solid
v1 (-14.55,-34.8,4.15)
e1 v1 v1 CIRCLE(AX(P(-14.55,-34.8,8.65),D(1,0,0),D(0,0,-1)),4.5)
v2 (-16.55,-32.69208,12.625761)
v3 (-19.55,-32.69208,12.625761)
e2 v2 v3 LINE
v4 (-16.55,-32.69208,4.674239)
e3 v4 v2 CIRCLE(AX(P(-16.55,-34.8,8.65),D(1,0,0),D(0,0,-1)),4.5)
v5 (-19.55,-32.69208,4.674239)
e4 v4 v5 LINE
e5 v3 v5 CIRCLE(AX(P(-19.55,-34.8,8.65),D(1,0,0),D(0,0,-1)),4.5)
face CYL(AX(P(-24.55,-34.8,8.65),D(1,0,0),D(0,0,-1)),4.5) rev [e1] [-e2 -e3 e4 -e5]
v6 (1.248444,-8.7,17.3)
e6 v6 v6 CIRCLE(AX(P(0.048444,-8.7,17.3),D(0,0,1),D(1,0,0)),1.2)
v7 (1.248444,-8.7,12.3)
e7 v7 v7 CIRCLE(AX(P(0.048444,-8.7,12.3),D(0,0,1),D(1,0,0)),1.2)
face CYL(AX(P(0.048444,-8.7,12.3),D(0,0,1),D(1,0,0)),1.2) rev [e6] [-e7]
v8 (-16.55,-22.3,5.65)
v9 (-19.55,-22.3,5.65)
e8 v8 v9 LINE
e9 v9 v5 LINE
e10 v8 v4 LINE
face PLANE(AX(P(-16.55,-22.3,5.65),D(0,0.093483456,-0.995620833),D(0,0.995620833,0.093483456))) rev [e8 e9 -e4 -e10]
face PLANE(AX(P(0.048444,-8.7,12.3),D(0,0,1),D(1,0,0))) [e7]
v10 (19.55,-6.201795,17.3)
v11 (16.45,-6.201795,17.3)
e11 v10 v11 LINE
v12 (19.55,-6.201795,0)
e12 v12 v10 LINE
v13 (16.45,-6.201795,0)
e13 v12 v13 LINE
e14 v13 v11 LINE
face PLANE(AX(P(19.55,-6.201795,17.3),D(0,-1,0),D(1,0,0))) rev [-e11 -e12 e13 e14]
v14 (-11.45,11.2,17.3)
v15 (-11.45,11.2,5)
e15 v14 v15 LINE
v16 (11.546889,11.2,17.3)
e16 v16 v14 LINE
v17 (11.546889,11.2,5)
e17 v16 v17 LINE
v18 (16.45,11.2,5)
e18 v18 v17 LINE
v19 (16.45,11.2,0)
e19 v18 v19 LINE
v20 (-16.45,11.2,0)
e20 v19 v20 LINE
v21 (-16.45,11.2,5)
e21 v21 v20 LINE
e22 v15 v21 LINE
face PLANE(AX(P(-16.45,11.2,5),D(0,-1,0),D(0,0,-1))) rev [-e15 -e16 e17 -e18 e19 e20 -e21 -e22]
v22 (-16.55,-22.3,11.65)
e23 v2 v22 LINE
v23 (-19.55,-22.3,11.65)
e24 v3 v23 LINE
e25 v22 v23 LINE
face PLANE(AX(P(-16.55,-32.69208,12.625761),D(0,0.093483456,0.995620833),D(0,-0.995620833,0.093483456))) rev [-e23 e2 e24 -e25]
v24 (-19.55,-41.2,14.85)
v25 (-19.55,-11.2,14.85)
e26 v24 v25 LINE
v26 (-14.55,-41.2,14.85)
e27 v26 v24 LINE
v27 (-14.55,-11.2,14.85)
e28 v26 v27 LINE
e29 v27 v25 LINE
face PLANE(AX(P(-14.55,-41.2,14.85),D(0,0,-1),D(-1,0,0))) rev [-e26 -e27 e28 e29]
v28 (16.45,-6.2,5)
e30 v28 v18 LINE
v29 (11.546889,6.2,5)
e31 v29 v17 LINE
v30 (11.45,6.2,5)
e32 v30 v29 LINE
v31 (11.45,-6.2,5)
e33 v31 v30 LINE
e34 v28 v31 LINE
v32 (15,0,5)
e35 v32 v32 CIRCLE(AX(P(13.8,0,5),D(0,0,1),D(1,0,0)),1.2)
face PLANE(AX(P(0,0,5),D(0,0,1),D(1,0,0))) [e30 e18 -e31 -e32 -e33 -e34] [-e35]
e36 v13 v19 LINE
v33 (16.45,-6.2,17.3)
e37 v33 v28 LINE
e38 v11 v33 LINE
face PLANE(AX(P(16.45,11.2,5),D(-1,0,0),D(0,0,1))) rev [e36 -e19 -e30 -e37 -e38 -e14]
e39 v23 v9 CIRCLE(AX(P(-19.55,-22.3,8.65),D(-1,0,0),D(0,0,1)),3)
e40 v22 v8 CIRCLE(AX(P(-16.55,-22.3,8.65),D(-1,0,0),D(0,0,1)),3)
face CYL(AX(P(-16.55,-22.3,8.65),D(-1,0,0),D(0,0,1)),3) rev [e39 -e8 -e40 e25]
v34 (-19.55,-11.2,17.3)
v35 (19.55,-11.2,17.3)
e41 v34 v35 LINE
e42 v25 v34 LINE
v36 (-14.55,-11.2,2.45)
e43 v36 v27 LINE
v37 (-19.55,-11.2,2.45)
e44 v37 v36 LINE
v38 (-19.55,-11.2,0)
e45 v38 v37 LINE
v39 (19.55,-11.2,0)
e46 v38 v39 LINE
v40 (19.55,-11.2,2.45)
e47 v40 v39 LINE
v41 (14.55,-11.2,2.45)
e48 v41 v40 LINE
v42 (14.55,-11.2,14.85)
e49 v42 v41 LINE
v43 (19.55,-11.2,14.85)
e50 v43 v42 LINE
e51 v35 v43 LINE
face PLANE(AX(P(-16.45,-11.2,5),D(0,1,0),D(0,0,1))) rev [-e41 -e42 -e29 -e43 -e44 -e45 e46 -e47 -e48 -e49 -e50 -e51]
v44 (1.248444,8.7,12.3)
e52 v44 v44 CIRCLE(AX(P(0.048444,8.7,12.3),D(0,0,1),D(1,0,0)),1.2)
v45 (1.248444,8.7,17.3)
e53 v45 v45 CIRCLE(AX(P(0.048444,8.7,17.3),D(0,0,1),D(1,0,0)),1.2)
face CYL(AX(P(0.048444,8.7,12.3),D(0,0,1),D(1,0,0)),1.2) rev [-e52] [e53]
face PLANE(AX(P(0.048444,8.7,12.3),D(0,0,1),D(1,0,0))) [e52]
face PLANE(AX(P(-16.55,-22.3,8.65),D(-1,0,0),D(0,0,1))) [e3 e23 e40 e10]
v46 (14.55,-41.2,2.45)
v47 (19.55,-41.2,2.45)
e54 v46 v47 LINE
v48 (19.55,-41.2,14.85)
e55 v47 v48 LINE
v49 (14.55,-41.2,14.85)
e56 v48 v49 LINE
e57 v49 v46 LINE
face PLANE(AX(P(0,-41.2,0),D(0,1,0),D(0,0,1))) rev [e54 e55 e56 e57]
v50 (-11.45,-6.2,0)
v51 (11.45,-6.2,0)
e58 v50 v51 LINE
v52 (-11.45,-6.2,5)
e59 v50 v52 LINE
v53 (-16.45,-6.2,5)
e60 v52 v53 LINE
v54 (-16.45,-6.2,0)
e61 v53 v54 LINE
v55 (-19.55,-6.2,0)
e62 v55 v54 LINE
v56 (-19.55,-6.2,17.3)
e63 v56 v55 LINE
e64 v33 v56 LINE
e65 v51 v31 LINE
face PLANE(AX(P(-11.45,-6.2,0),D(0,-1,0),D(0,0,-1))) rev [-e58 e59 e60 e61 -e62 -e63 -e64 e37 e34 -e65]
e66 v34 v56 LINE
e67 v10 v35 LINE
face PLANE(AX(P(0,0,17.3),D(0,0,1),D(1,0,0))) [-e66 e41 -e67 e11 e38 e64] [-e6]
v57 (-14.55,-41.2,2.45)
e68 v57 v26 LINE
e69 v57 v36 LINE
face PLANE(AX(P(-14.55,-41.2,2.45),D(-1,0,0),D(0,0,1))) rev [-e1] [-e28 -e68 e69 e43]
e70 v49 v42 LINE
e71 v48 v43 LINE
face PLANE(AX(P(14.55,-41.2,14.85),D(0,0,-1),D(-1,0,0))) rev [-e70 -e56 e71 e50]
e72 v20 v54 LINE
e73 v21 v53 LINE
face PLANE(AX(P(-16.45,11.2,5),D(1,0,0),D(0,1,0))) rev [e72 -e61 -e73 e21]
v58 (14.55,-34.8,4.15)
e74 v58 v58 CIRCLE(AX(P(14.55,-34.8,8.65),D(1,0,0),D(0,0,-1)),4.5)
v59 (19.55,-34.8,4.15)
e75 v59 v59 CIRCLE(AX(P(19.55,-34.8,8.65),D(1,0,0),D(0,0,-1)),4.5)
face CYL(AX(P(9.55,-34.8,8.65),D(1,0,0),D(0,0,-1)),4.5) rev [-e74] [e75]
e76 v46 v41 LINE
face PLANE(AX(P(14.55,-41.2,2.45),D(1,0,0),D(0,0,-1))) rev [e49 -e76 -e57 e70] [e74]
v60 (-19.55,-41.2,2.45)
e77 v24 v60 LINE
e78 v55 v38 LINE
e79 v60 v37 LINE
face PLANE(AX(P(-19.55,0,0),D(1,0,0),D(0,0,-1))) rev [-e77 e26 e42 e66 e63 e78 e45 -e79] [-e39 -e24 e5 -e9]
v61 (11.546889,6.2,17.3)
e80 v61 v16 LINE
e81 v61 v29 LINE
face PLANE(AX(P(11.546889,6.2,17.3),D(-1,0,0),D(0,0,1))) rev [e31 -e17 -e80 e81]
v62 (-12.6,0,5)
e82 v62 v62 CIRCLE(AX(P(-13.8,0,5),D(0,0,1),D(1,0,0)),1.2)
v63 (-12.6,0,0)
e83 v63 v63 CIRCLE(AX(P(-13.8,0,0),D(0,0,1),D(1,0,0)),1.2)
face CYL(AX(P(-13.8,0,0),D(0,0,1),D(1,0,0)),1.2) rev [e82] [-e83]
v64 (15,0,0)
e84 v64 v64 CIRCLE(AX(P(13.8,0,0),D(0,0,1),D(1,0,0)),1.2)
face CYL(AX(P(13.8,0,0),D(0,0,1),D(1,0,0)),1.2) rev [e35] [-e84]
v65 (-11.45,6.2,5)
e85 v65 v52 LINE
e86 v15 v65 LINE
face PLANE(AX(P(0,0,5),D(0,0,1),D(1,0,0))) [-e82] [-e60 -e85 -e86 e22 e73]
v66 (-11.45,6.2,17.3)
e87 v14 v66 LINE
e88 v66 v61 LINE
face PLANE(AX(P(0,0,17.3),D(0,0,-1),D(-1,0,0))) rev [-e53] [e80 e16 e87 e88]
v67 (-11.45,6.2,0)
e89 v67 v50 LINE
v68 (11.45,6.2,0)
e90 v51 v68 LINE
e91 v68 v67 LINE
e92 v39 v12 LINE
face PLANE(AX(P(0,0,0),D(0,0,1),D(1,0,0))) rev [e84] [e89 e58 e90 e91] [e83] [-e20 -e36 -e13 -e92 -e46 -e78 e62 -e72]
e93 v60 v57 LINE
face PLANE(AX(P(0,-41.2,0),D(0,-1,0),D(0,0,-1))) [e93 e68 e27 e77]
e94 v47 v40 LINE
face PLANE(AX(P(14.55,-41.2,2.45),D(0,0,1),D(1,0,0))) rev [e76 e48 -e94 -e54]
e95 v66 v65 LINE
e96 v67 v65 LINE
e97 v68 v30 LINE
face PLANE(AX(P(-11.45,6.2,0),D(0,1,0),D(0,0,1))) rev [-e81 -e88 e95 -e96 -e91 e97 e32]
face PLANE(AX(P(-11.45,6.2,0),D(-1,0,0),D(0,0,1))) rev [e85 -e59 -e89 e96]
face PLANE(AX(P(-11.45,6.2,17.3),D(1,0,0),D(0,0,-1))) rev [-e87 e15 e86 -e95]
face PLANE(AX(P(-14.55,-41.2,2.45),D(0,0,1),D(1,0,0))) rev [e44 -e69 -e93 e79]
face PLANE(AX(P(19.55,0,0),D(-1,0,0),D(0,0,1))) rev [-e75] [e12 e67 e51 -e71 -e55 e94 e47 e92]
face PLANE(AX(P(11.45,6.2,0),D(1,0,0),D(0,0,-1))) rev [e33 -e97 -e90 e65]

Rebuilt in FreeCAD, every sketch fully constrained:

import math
import FreeCAD as App
import Part
import Sketcher

V = App.Vector
Q = App.Units.Quantity

doc = App.newDocument("Part")
params = doc.addObject("Spreadsheet::Sheet", "Params")
for row, (alias, value) in enumerate([
    ("sketch1_width", "32.9 mm"),
    ("sketch1_height", "22.4 mm"),
    ("pad1_length", "5 mm"),
    ("sketch2_diameter", "2.4 mm"),
    ("sketch2_width", "22.9 mm"),
    ("sketch2_height", "12.4 mm"),
    ("pocket1_length", "5 mm"),
    ("sketch3_height", "5 mm"),
    ("pad2_length", "12.3 mm"),
    ("sketch4_diameter", "2.4 mm"),
    ("pocket2_length", "5 mm"),
    ("sketch5_width", "5 mm"),
    ("pad3_length", "12.3 mm"),
    ("sketch6_height", "17.3 mm"),
    ("pad4_length", "3.1 mm"),
    ("sketch7_width", "5 mm"),
    ("sketch7_height", "17.3 mm"),
    ("pad5_length", "3.1 mm"),
    ("sketch8_width", "5 mm"),
    ("sketch8_height", "12.4 mm"),
    ("pad6_length", "30 mm"),
    ("sketch9_diameter", "9 mm"),
    ("pocket3_length", "30 mm"),
    ("sketch10_diameter", "9 mm"),
    ("pocket4_length", "30 mm"),
    ("sketch11_width", "5 mm"),
    ("sketch11_height", "12.4 mm"),
    ("pad7_length", "30 mm"),
    ("sketch12_diameter", "9 mm"),
    ("pocket5_length", "10 mm"),
    ("sketch13_diameter", "9 mm"),
    ("pocket6_length", "10 mm"),
    ("sketch14_radius", "3 mm"),
    ("sketch14_radius2", "4.5 mm"),
    ("pocket7_length", "3 mm"),
], start=1):
    params.set(f"A{row}", alias)
    params.set(f"B{row}", "=" + value)
    params.setAlias(f"B{row}", alias)

body = doc.addObject("PartDesign::Body", "Body")

sketch1 = doc.addObject("Sketcher::SketchObject", "Sketch")
body.addObject(sketch1)
sketch1.AttachmentSupport = (doc.XY_Plane, [""])
sketch1.MapMode = "FlatFace"
sketch1.addGeometry([
    Part.LineSegment(V(-16, 11, 0), V(-16, -11, 0)),
    Part.LineSegment(V(-16, -11, 0), V(16, -11, 0)),
    Part.LineSegment(V(16, -11, 0), V(16, 11, 0)),
    Part.LineSegment(V(16, 11, 0), V(-16, 11, 0)),
], False)
sketch1.addConstraint([
    Sketcher.Constraint("Coincident", 0, 2, 1, 1),
    Sketcher.Constraint("Coincident", 1, 2, 2, 1),
    Sketcher.Constraint("Coincident", 2, 2, 3, 1),
    Sketcher.Constraint("Coincident", 3, 2, 0, 1),
    Sketcher.Constraint("Vertical", 0),
    Sketcher.Constraint("Horizontal", 1),
    Sketcher.Constraint("Vertical", 2),
    Sketcher.Constraint("Horizontal", 3),
    Sketcher.Constraint("Symmetric", 0, 2, 2, 2, -1, 1),
    Sketcher.Constraint("DistanceX", 1, 1, 1, 2, Q("32.9 mm")),
    Sketcher.Constraint("DistanceY", 0, 2, 0, 1, Q("22.4 mm")),
])
sketch1.setExpression("Constraints[9]", "Params.sketch1_width")
sketch1.setExpression("Constraints[10]", "Params.sketch1_height")
pad1 = doc.addObject("PartDesign::Pad", "Pad")
body.addObject(pad1)
pad1.Profile = sketch1
pad1.setExpression("Length", "Params.pad1_length")

sketch2 = doc.addObject("Sketcher::SketchObject", "Sketch001")
body.addObject(sketch2)
sketch2.AttachmentSupport = (doc.XY_Plane, [""])
sketch2.MapMode = "FlatFace"
sketch2.AttachmentOffset = App.Placement(V(0, 0, 5), App.Rotation())
sketch2.addGeometry([
    Part.Circle(V(13.8, 0, 0), V(0, 0, 1), 1.2),
    Part.Circle(V(-13.8, 0, 0), V(0, 0, 1), 1.2),
    Part.LineSegment(V(-11.4, 6.2, 0), V(-11.4, -6.2, 0)),
    Part.LineSegment(V(-11.4, -6.2, 0), V(11.4, -6.2, 0)),
    Part.LineSegment(V(11.4, -6.2, 0), V(11.4, 6.2, 0)),
    Part.LineSegment(V(11.4, 6.2, 0), V(-11.4, 6.2, 0)),
], False)
sketch2.addConstraint([
    Sketcher.Constraint("Coincident", 2, 2, 3, 1),
    Sketcher.Constraint("Coincident", 3, 2, 4, 1),
    Sketcher.Constraint("Coincident", 4, 2, 5, 1),
    Sketcher.Constraint("Coincident", 5, 2, 2, 1),
    Sketcher.Constraint("Vertical", 2),
    Sketcher.Constraint("Horizontal", 3),
    Sketcher.Constraint("Vertical", 4),
    Sketcher.Constraint("Horizontal", 5),
    Sketcher.Constraint("Equal", 0, 1),
    Sketcher.Constraint("Symmetric", 0, 3, 1, 3, -1, 1),
    Sketcher.Constraint("Symmetric", 2, 2, 4, 2, -1, 1),
    Sketcher.Constraint("PointOnObject", 0, 3, -1),
    Sketcher.Constraint("Diameter", 0, Q("2.4 mm")),
    Sketcher.Constraint("DistanceX", 3, 1, 3, 2, Q("22.9 mm")),
    Sketcher.Constraint("DistanceY", 2, 2, 2, 1, Q("12.4 mm")),
    Sketcher.Constraint("DistanceX", -1, 1, 0, 3, Q("13.8 mm")),
])
sketch2.setExpression("Constraints[12]", "Params.sketch2_diameter")
sketch2.setExpression("Constraints[13]", "Params.sketch2_width")
sketch2.setExpression("Constraints[14]", "Params.sketch2_height")
pocket1 = doc.addObject("PartDesign::Pocket", "Pocket")
body.addObject(pocket1)
pocket1.Profile = sketch2
pocket1.setExpression("Length", "Params.pocket1_length")

sketch3 = doc.addObject("Sketcher::SketchObject", "Sketch002")
body.addObject(sketch3)
sketch3.AttachmentSupport = (doc.XY_Plane, [""])
sketch3.MapMode = "FlatFace"
sketch3.AttachmentOffset = App.Placement(V(0, 0, 5), App.Rotation())
sketch3.addGeometry([
    Part.LineSegment(V(-11.4, 11.2, 0), V(-11.4, 6.2, 0)),
    Part.LineSegment(V(-11.4, 6.2, 0), V(11.5, 6.2, 0)),
    Part.LineSegment(V(11.5, 6.2, 0), V(11.5, 11.2, 0)),
    Part.LineSegment(V(11.5, 11.2, 0), V(-11.4, 11.2, 0)),
    Part.LineSegment(V(-11.4, -6.2, 0), V(-11.4, -11.2, 0)),
    Part.LineSegment(V(-11.4, -11.2, 0), V(11.5, -11.2, 0)),
    Part.LineSegment(V(11.5, -11.2, 0), V(11.5, -6.2, 0)),
    Part.LineSegment(V(11.5, -6.2, 0), V(-11.4, -6.2, 0)),
], False)
sketch3.addConstraint([
    Sketcher.Constraint("Coincident", 0, 2, 1, 1),
    Sketcher.Constraint("Coincident", 1, 2, 2, 1),
    Sketcher.Constraint("Coincident", 2, 2, 3, 1),
    Sketcher.Constraint("Coincident", 3, 2, 0, 1),
    Sketcher.Constraint("Coincident", 4, 2, 5, 1),
    Sketcher.Constraint("Coincident", 5, 2, 6, 1),
    Sketcher.Constraint("Coincident", 6, 2, 7, 1),
    Sketcher.Constraint("Coincident", 7, 2, 4, 1),
    Sketcher.Constraint("Vertical", 0),
    Sketcher.Constraint("Horizontal", 1),
    Sketcher.Constraint("Vertical", 2),
    Sketcher.Constraint("Horizontal", 3),
    Sketcher.Constraint("Vertical", 4),
    Sketcher.Constraint("Horizontal", 5),
    Sketcher.Constraint("Vertical", 6),
    Sketcher.Constraint("Horizontal", 7),
    Sketcher.Constraint("Symmetric", 3, 2, 4, 2, -1),
    Sketcher.Constraint("Symmetric", 1, 2, 6, 2, -1),
    Sketcher.Constraint("DistanceY", 0, 2, 0, 1, Q("5 mm")),
    Sketcher.Constraint("DistanceY", -1, 1, 0, 2, Q("6.2 mm")),
    Sketcher.Constraint("DistanceX", 0, 2, -1, 1, Q("11.45 mm")),
    Sketcher.Constraint("DistanceX", 1, 1, 1, 2, Q("22.996889 mm")),
])
sketch3.setExpression("Constraints[18]", "Params.sketch3_height")
pad2 = doc.addObject("PartDesign::Pad", "Pad001")
body.addObject(pad2)
pad2.Profile = sketch3
pad2.setExpression("Length", "Params.pad2_length")

sketch4 = doc.addObject("Sketcher::SketchObject", "Sketch003")
body.addObject(sketch4)
sketch4.AttachmentSupport = (doc.XY_Plane, [""])
sketch4.MapMode = "FlatFace"
sketch4.AttachmentOffset = App.Placement(V(0, 0, 17.3), App.Rotation())
sketch4.addGeometry([
    Part.Circle(V(0, 8.7, 0), V(0, 0, 1), 1.2),
    Part.Circle(V(0, -8.7, 0), V(0, 0, 1), 1.2),
], False)
sketch4.addConstraint([
    Sketcher.Constraint("Equal", 0, 1),
    Sketcher.Constraint("Symmetric", 0, 3, 1, 3, -1),
    Sketcher.Constraint("Diameter", 0, Q("2.4 mm")),
    Sketcher.Constraint("DistanceY", -1, 1, 0, 3, Q("8.7 mm")),
    Sketcher.Constraint("DistanceX", -1, 1, 0, 3, Q("0.048444 mm")),
])
sketch4.setExpression("Constraints[2]", "Params.sketch4_diameter")
pocket2 = doc.addObject("PartDesign::Pocket", "Pocket001")
body.addObject(pocket2)
pocket2.Profile = sketch4
pocket2.setExpression("Length", "Params.pocket2_length")

sketch5 = doc.addObject("Sketcher::SketchObject", "Sketch004")
body.addObject(sketch5)
sketch5.AttachmentSupport = (doc.XY_Plane, [""])
sketch5.MapMode = "FlatFace"
sketch5.AttachmentOffset = App.Placement(V(0, 0, 5), App.Rotation())
sketch5.addGeometry([
    Part.LineSegment(V(-16.4, -6.2, 0), V(-16.4, -11.2, 0)),
    Part.LineSegment(V(-16.4, -11.2, 0), V(-11.4, -11.2, 0)),
    Part.LineSegment(V(-11.4, -11.2, 0), V(-11.4, -6.2, 0)),
    Part.LineSegment(V(-11.4, -6.2, 0), V(-16.4, -6.2, 0)),
    Part.LineSegment(V(11.5, -6.2, 0), V(11.5, -11.2, 0)),
    Part.LineSegment(V(11.5, -11.2, 0), V(16.4, -11.2, 0)),
    Part.LineSegment(V(16.4, -11.2, 0), V(16.4, -6.2, 0)),
    Part.LineSegment(V(16.4, -6.2, 0), V(11.5, -6.2, 0)),
], False)
sketch5.addConstraint([
    Sketcher.Constraint("Coincident", 0, 2, 1, 1),
    Sketcher.Constraint("Coincident", 1, 2, 2, 1),
    Sketcher.Constraint("Coincident", 2, 2, 3, 1),
    Sketcher.Constraint("Coincident", 3, 2, 0, 1),
    Sketcher.Constraint("Coincident", 4, 2, 5, 1),
    Sketcher.Constraint("Coincident", 5, 2, 6, 1),
    Sketcher.Constraint("Coincident", 6, 2, 7, 1),
    Sketcher.Constraint("Coincident", 7, 2, 4, 1),
    Sketcher.Constraint("Vertical", 0),
    Sketcher.Constraint("Horizontal", 1),
    Sketcher.Constraint("Vertical", 2),
    Sketcher.Constraint("Horizontal", 3),
    Sketcher.Constraint("Vertical", 4),
    Sketcher.Constraint("Horizontal", 5),
    Sketcher.Constraint("Vertical", 6),
    Sketcher.Constraint("Horizontal", 7),
    Sketcher.Constraint("Symmetric", 0, 2, 5, 2, -2),
    Sketcher.Constraint("Horizontal", 3, 2, 6, 2),
    Sketcher.Constraint("Equal", 3, 0),
    Sketcher.Constraint("DistanceX", 1, 1, 1, 2, Q("5 mm")),
    Sketcher.Constraint("DistanceY", 0, 2, -1, 1, Q("11.2 mm")),
    Sketcher.Constraint("DistanceX", 1, 2, 5, 2, Q("27.9 mm")),
    Sketcher.Constraint("DistanceX", 5, 1, 5, 2, Q("4.903111 mm")),
])
sketch5.setExpression("Constraints[19]", "Params.sketch5_width")
pad3 = doc.addObject("PartDesign::Pad", "Pad002")
body.addObject(pad3)
pad3.Profile = sketch5
pad3.setExpression("Length", "Params.pad3_length")

sketch6 = doc.addObject("Sketcher::SketchObject", "Sketch005")
body.addObject(sketch6)
sketch6.AttachmentSupport = (doc.YZ_Plane, [""])
sketch6.MapMode = "FlatFace"
sketch6.AttachmentOffset = App.Placement(V(0, 0, 16.45), App.Rotation())
sketch6.addGeometry([
    Part.LineSegment(V(-6.2, 17.3, 0), V(-11.2, 17.3, 0)),
    Part.LineSegment(V(-11.2, 17.3, 0), V(-11.2, 0, 0)),
    Part.LineSegment(V(-11.2, 0, 0), V(-6.2, 0, 0)),
    Part.LineSegment(V(-6.2, 0, 0), V(-6.2, 17.3, 0)),
], False)
sketch6.addConstraint([
    Sketcher.Constraint("Coincident", 0, 2, 1, 1),
    Sketcher.Constraint("Coincident", 1, 2, 2, 1),
    Sketcher.Constraint("Coincident", 2, 2, 3, 1),
    Sketcher.Constraint("Coincident", 3, 2, 0, 1),
    Sketcher.Constraint("Horizontal", 0),
    Sketcher.Constraint("Vertical", 1),
    Sketcher.Constraint("Horizontal", 2),
    Sketcher.Constraint("Vertical", 3),
    Sketcher.Constraint("PointOnObject", 1, 2, -1),
    Sketcher.Constraint("DistanceY", 1, 2, 1, 1, Q("17.3 mm")),
    Sketcher.Constraint("DistanceX", 0, 2, -1, 1, Q("11.2 mm")),
    Sketcher.Constraint("DistanceX", 0, 2, 0, 1, Q("4.998205 mm")),
])
sketch6.setExpression("Constraints[9]", "Params.sketch6_height")
pad4 = doc.addObject("PartDesign::Pad", "Pad003")
body.addObject(pad4)
pad4.Profile = sketch6
pad4.setExpression("Length", "Params.pad4_length")

sketch7 = doc.addObject("Sketcher::SketchObject", "Sketch006")
body.addObject(sketch7)
sketch7.AttachmentSupport = (doc.YZ_Plane, [""])
sketch7.MapMode = "FlatFace"
sketch7.AttachmentOffset = App.Placement(V(0, 0, -16.45), App.Rotation())
sketch7.addGeometry([
    Part.LineSegment(V(-6.2, 0, 0), V(-11.2, 0, 0)),
    Part.LineSegment(V(-11.2, 0, 0), V(-11.2, 17.3, 0)),
    Part.LineSegment(V(-11.2, 17.3, 0), V(-6.2, 17.3, 0)),
    Part.LineSegment(V(-6.2, 17.3, 0), V(-6.2, 0, 0)),
], False)
sketch7.addConstraint([
    Sketcher.Constraint("Coincident", 0, 2, 1, 1),
    Sketcher.Constraint("Coincident", 1, 2, 2, 1),
    Sketcher.Constraint("Coincident", 2, 2, 3, 1),
    Sketcher.Constraint("Coincident", 3, 2, 0, 1),
    Sketcher.Constraint("Horizontal", 0),
    Sketcher.Constraint("Vertical", 1),
    Sketcher.Constraint("Horizontal", 2),
    Sketcher.Constraint("Vertical", 3),
    Sketcher.Constraint("PointOnObject", 0, 2, -1),
    Sketcher.Constraint("DistanceX", 0, 2, 0, 1, Q("5 mm")),
    Sketcher.Constraint("DistanceY", 1, 1, 1, 2, Q("17.3 mm")),
    Sketcher.Constraint("DistanceX", 0, 2, -1, 1, Q("11.2 mm")),
])
sketch7.setExpression("Constraints[9]", "Params.sketch7_width")
sketch7.setExpression("Constraints[10]", "Params.sketch7_height")
pad5 = doc.addObject("PartDesign::Pad", "Pad004")
body.addObject(pad5)
pad5.Profile = sketch7
pad5.setExpression("Length", "Params.pad5_length")
pad5.Reversed = True

sketch8 = doc.addObject("Sketcher::SketchObject", "Sketch007")
body.addObject(sketch8)
sketch8.AttachmentSupport = (doc.XZ_Plane, [""])
sketch8.MapMode = "FlatFace"
sketch8.AttachmentOffset = App.Placement(V(0, 0, 11.2), App.Rotation())
sketch8.addGeometry([
    Part.LineSegment(V(-20, 15, 0), V(-20, 2, 0)),
    Part.LineSegment(V(-20, 2, 0), V(-15, 2, 0)),
    Part.LineSegment(V(-15, 2, 0), V(-15, 15, 0)),
    Part.LineSegment(V(-15, 15, 0), V(-20, 15, 0)),
    Part.LineSegment(V(15, 15, 0), V(15, 2, 0)),
    Part.LineSegment(V(15, 2, 0), V(20, 2, 0)),
    Part.LineSegment(V(20, 2, 0), V(20, 15, 0)),
    Part.LineSegment(V(20, 15, 0), V(15, 15, 0)),
], False)
sketch8.addConstraint([
    Sketcher.Constraint("Coincident", 0, 2, 1, 1),
    Sketcher.Constraint("Coincident", 1, 2, 2, 1),
    Sketcher.Constraint("Coincident", 2, 2, 3, 1),
    Sketcher.Constraint("Coincident", 3, 2, 0, 1),
    Sketcher.Constraint("Coincident", 4, 2, 5, 1),
    Sketcher.Constraint("Coincident", 5, 2, 6, 1),
    Sketcher.Constraint("Coincident", 6, 2, 7, 1),
    Sketcher.Constraint("Coincident", 7, 2, 4, 1),
    Sketcher.Constraint("Vertical", 0),
    Sketcher.Constraint("Horizontal", 1),
    Sketcher.Constraint("Vertical", 2),
    Sketcher.Constraint("Horizontal", 3),
    Sketcher.Constraint("Vertical", 4),
    Sketcher.Constraint("Horizontal", 5),
    Sketcher.Constraint("Vertical", 6),
    Sketcher.Constraint("Horizontal", 7),
    Sketcher.Constraint("Symmetric", 1, 2, 4, 2, -2),
    Sketcher.Constraint("Symmetric", 3, 2, 6, 2, -2),
    Sketcher.Constraint("DistanceX", 1, 1, 1, 2, Q("5 mm")),
    Sketcher.Constraint("DistanceY", 0, 2, 0, 1, Q("12.4 mm")),
    Sketcher.Constraint("DistanceX", 1, 2, 4, 2, Q("29.1 mm")),
    Sketcher.Constraint("DistanceY", -1, 1, 0, 2, Q("2.45 mm")),
])
sketch8.setExpression("Constraints[18]", "Params.sketch8_width")
sketch8.setExpression("Constraints[19]", "Params.sketch8_height")
pad6 = doc.addObject("PartDesign::Pad", "Pad005")
body.addObject(pad6)
pad6.Profile = sketch8
pad6.setExpression("Length", "Params.pad6_length")

sketch9 = doc.addObject("Sketcher::SketchObject", "Sketch008")
body.addObject(sketch9)
sketch9.AttachmentSupport = (doc.YZ_Plane, [""])
sketch9.MapMode = "FlatFace"
sketch9.AttachmentOffset = App.Placement(V(0, 0, -19.55), App.Rotation())
sketch9.addGeometry(Part.Circle(V(-34.8, 8.7, 0), V(0, 0, 1), 4.5), False)
sketch9.addConstraint([
    Sketcher.Constraint("Diameter", 0, Q("9 mm")),
    Sketcher.Constraint("DistanceX", 0, 3, -1, 1, Q("34.8 mm")),
    Sketcher.Constraint("DistanceY", -1, 1, 0, 3, Q("8.65 mm")),
])
sketch9.setExpression("Constraints[0]", "Params.sketch9_diameter")
pocket3 = doc.addObject("PartDesign::Pocket", "Pocket002")
body.addObject(pocket3)
pocket3.Profile = sketch9
pocket3.setExpression("Length", "Params.pocket3_length")
pocket3.Reversed = True

sketch10 = doc.addObject("Sketcher::SketchObject", "Sketch009")
body.addObject(sketch10)
sketch10.AttachmentSupport = (doc.YZ_Plane, [""])
sketch10.MapMode = "FlatFace"
sketch10.AttachmentOffset = App.Placement(V(0, 0, 19.55), App.Rotation())
sketch10.addGeometry(Part.Circle(V(-34.8, 8.7, 0), V(0, 0, 1), 4.5), False)
sketch10.addConstraint([
    Sketcher.Constraint("Diameter", 0, Q("9 mm")),
    Sketcher.Constraint("DistanceX", 0, 3, -1, 1, Q("34.8 mm")),
    Sketcher.Constraint("DistanceY", -1, 1, 0, 3, Q("8.65 mm")),
])
sketch10.setExpression("Constraints[0]", "Params.sketch10_diameter")
pocket4 = doc.addObject("PartDesign::Pocket", "Pocket003")
body.addObject(pocket4)
pocket4.Profile = sketch10
pocket4.setExpression("Length", "Params.pocket4_length")

sketch11 = doc.addObject("Sketcher::SketchObject", "Sketch010")
body.addObject(sketch11)
sketch11.AttachmentSupport = (doc.XZ_Plane, [""])
sketch11.MapMode = "FlatFace"
sketch11.AttachmentOffset = App.Placement(V(0, 0, 11.2), App.Rotation())
sketch11.addGeometry([
    Part.LineSegment(V(15, 15, 0), V(15, 2, 0)),
    Part.LineSegment(V(15, 2, 0), V(20, 2, 0)),
    Part.LineSegment(V(20, 2, 0), V(20, 15, 0)),
    Part.LineSegment(V(20, 15, 0), V(15, 15, 0)),
    Part.LineSegment(V(-20, 15, 0), V(-20, 2, 0)),
    Part.LineSegment(V(-20, 2, 0), V(-15, 2, 0)),
    Part.LineSegment(V(-15, 2, 0), V(-15, 15, 0)),
    Part.LineSegment(V(-15, 15, 0), V(-20, 15, 0)),
], False)
sketch11.addConstraint([
    Sketcher.Constraint("Coincident", 0, 2, 1, 1),
    Sketcher.Constraint("Coincident", 1, 2, 2, 1),
    Sketcher.Constraint("Coincident", 2, 2, 3, 1),
    Sketcher.Constraint("Coincident", 3, 2, 0, 1),
    Sketcher.Constraint("Coincident", 4, 2, 5, 1),
    Sketcher.Constraint("Coincident", 5, 2, 6, 1),
    Sketcher.Constraint("Coincident", 6, 2, 7, 1),
    Sketcher.Constraint("Coincident", 7, 2, 4, 1),
    Sketcher.Constraint("Vertical", 0),
    Sketcher.Constraint("Horizontal", 1),
    Sketcher.Constraint("Vertical", 2),
    Sketcher.Constraint("Horizontal", 3),
    Sketcher.Constraint("Vertical", 4),
    Sketcher.Constraint("Horizontal", 5),
    Sketcher.Constraint("Vertical", 6),
    Sketcher.Constraint("Horizontal", 7),
    Sketcher.Constraint("Symmetric", 1, 2, 4, 2, -2),
    Sketcher.Constraint("Symmetric", 3, 2, 6, 2, -2),
    Sketcher.Constraint("DistanceX", 1, 1, 1, 2, Q("5 mm")),
    Sketcher.Constraint("DistanceY", 0, 2, 0, 1, Q("12.4 mm")),
    Sketcher.Constraint("DistanceX", 4, 2, 0, 2, Q("34.1 mm")),
    Sketcher.Constraint("DistanceY", -1, 1, 0, 2, Q("2.45 mm")),
])
sketch11.setExpression("Constraints[18]", "Params.sketch11_width")
sketch11.setExpression("Constraints[19]", "Params.sketch11_height")
pad7 = doc.addObject("PartDesign::Pad", "Pad006")
body.addObject(pad7)
pad7.Profile = sketch11
pad7.setExpression("Length", "Params.pad7_length")

sketch12 = doc.addObject("Sketcher::SketchObject", "Sketch011")
body.addObject(sketch12)
sketch12.AttachmentSupport = (doc.YZ_Plane, [""])
sketch12.MapMode = "FlatFace"
sketch12.AttachmentOffset = App.Placement(V(0, 0, 19.55), App.Rotation())
sketch12.addGeometry(Part.Circle(V(-34.8, 8.7, 0), V(0, 0, 1), 4.5), False)
sketch12.addConstraint([
    Sketcher.Constraint("Diameter", 0, Q("9 mm")),
    Sketcher.Constraint("DistanceX", 0, 3, -1, 1, Q("34.8 mm")),
    Sketcher.Constraint("DistanceY", -1, 1, 0, 3, Q("8.65 mm")),
])
sketch12.setExpression("Constraints[0]", "Params.sketch12_diameter")
pocket5 = doc.addObject("PartDesign::Pocket", "Pocket004")
body.addObject(pocket5)
pocket5.Profile = sketch12
pocket5.setExpression("Length", "Params.pocket5_length")

sketch13 = doc.addObject("Sketcher::SketchObject", "Sketch012")
body.addObject(sketch13)
sketch13.AttachmentSupport = (doc.YZ_Plane, [""])
sketch13.MapMode = "FlatFace"
sketch13.AttachmentOffset = App.Placement(V(0, 0, -14.55), App.Rotation())
sketch13.addGeometry(Part.Circle(V(-34.8, 8.7, 0), V(0, 0, 1), 4.5), False)
sketch13.addConstraint([
    Sketcher.Constraint("Diameter", 0, Q("9 mm")),
    Sketcher.Constraint("DistanceX", 0, 3, -1, 1, Q("34.8 mm")),
    Sketcher.Constraint("DistanceY", -1, 1, 0, 3, Q("8.65 mm")),
])
sketch13.setExpression("Constraints[0]", "Params.sketch13_diameter")
pocket6 = doc.addObject("PartDesign::Pocket", "Pocket005")
body.addObject(pocket6)
pocket6.Profile = sketch13
pocket6.setExpression("Length", "Params.pocket6_length")

sketch14 = doc.addObject("Sketcher::SketchObject", "Sketch013")
body.addObject(sketch14)
sketch14.AttachmentSupport = (doc.YZ_Plane, [""])
sketch14.MapMode = "FlatFace"
sketch14.AttachmentOffset = App.Placement(V(0, 0, -19.55), App.Rotation())
sketch14.addGeometry([
    Part.LineSegment(V(-22.3, 5.7, 0), V(-32.7, 4.7, 0)),
    Part.ArcOfCircle(Part.Circle(V(-34.8, 8.7, 0), V(0, 0, 1), 4.5), math.radians(-62), math.radians(62)),
    Part.LineSegment(V(-32.7, 12.6, 0), V(-22.3, 11.7, 0)),
    Part.ArcOfCircle(Part.Circle(V(-22.3, 8.7, 0), V(0, 0, 1), 3), math.radians(-90), math.radians(90)),
], False)
sketch14.addConstraint([
    Sketcher.Constraint("Coincident", 0, 2, 1, 1),
    Sketcher.Constraint("Coincident", 1, 2, 2, 1),
    Sketcher.Constraint("Coincident", 2, 2, 3, 2),
    Sketcher.Constraint("Coincident", 3, 1, 0, 1),
    Sketcher.Constraint("Horizontal", 1, 3, 3, 3),
    Sketcher.Constraint("Vertical", 0, 2, 1, 2),
    Sketcher.Constraint("Vertical", 3, 3, 2, 2),
    Sketcher.Constraint("Vertical", 2, 2, 3, 1),
    Sketcher.Constraint("Radius", 3, Q("3 mm")),
    Sketcher.Constraint("Radius", 1, Q("4.5 mm")),
    Sketcher.Constraint("DistanceX", 1, 3, -1, 1, Q("34.8 mm")),
    Sketcher.Constraint("DistanceX", 3, 3, -1, 1, Q("22.3 mm")),
    Sketcher.Constraint("DistanceY", -1, 1, 1, 3, Q("8.65 mm")),
    Sketcher.Constraint("Distance", 0, Q("10.437788 mm")),
])
sketch14.setExpression("Constraints[8]", "Params.sketch14_radius")
sketch14.setExpression("Constraints[9]", "Params.sketch14_radius2")
pocket7 = doc.addObject("PartDesign::Pocket", "Pocket006")
body.addObject(pocket7)
pocket7.Profile = sketch14
pocket7.setExpression("Length", "Params.pocket7_length")
pocket7.Reversed = True

doc.recompute()
